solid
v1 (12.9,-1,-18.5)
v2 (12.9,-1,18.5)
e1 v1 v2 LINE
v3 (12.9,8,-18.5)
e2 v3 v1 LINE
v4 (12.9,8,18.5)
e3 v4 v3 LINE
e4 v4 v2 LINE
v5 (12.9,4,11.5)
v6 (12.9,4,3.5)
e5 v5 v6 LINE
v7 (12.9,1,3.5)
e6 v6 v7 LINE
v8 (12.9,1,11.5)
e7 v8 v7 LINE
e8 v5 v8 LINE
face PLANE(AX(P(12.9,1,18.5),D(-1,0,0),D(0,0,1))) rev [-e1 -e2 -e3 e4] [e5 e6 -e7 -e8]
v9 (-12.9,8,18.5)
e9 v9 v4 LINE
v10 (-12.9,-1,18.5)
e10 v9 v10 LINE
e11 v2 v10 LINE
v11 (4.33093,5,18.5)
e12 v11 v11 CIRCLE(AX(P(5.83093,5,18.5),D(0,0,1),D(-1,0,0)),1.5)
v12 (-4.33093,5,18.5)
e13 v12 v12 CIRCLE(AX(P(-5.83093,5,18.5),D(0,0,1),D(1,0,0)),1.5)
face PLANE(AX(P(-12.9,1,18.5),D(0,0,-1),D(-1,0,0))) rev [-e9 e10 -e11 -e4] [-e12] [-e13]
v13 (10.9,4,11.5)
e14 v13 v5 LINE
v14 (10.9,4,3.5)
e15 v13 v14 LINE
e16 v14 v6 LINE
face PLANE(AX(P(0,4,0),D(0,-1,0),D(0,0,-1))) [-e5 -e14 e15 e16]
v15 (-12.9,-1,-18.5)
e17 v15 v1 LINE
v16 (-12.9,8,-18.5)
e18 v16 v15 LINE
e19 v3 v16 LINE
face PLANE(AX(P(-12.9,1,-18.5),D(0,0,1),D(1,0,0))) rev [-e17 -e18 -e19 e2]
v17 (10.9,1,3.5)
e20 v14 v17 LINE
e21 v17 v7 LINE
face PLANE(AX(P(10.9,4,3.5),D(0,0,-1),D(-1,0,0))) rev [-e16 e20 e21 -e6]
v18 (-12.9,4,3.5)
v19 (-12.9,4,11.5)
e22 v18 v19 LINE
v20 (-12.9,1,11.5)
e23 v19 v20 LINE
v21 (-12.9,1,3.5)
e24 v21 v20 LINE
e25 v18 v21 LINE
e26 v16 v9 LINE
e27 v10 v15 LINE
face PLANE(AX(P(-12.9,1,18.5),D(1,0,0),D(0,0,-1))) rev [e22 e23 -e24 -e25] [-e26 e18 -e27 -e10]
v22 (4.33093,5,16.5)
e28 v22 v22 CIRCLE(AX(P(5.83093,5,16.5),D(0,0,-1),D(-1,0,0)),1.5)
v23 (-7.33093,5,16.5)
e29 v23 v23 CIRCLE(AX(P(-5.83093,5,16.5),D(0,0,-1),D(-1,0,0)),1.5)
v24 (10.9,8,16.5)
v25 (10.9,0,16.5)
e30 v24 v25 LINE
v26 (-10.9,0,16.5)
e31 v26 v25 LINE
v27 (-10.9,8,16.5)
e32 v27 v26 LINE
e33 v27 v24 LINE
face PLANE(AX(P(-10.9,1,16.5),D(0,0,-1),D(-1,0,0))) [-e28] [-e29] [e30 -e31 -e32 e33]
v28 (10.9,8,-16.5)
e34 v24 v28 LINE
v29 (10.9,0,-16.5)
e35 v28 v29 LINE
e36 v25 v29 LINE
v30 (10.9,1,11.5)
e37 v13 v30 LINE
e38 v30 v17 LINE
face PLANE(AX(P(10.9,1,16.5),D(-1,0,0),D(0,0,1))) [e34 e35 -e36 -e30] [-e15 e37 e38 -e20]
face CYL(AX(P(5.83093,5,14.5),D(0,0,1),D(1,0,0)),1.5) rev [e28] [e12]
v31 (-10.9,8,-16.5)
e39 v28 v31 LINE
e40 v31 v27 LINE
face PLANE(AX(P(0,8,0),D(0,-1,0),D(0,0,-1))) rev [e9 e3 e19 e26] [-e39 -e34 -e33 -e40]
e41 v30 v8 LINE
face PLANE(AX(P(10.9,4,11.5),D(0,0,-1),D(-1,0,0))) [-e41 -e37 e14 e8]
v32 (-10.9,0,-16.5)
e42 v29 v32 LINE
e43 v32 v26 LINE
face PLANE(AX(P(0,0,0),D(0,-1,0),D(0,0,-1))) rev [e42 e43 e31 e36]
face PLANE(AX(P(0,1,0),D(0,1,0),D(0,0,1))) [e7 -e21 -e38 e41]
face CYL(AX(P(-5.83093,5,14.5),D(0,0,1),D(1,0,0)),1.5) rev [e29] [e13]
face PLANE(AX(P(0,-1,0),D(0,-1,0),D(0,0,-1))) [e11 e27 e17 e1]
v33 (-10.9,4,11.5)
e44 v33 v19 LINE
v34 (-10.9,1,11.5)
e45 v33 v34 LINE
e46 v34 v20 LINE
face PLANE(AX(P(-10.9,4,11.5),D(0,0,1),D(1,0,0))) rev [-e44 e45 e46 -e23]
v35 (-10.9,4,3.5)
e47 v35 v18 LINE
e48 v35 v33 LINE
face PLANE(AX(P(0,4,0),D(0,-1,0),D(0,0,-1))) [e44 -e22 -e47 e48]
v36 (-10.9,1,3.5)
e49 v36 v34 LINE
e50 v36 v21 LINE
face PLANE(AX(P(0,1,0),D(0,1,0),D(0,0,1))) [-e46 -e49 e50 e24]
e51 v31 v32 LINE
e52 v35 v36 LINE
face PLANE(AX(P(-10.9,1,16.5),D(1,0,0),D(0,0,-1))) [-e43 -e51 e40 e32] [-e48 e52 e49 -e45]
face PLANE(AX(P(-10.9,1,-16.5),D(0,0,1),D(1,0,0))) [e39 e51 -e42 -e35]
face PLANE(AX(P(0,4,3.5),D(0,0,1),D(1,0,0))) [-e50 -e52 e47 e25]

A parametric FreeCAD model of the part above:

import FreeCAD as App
import Part
import Sketcher
from FreeCAD import Vector
Q = App.Units.Quantity


def add_polygon(sketch, points):
    """Adds a closed chain of lines whose ends are joined by coincident constraints."""
    first, n = sketch.GeometryCount, len(points)
    for a, b in zip(points, points[1:] + points[:1]):
        sketch.addGeometry(Part.LineSegment(App.Vector(*a, 0), App.Vector(*b, 0)), False)
    for i in range(n):
        sketch.addConstraint(Sketcher.Constraint("Coincident", first + i, 2, first + (i + 1) % n, 1))

doc = App.newDocument("Part")
body = doc.addObject("PartDesign::Body", "Body")

sketch1 = body.newObject("Sketcher::SketchObject", "Sketch")
sketch1.AttachmentSupport = (doc.getObject("XZ_Plane"), [""])
sketch1.MapMode = "FlatFace"
add_polygon(sketch1, [(-13, -18), (-13, 18), (13, 18), (13, -18)])
add_polygon(sketch1, [(11, 16), (-11, 16), (-11, -16), (11, -16)])
sketch1.addConstraint([
    Sketcher.Constraint("Vertical", 0),
    Sketcher.Constraint("Horizontal", 1),
    Sketcher.Constraint("Vertical", 2),
    Sketcher.Constraint("Horizontal", 3),
    Sketcher.Constraint("Horizontal", 4),
    Sketcher.Constraint("Vertical", 5),
    Sketcher.Constraint("Horizontal", 6),
    Sketcher.Constraint("Vertical", 7),
    Sketcher.Constraint("Symmetric", 0, 2, 2, 2, -1, 1),
    Sketcher.Constraint("Symmetric", 4, 2, 6, 2, -1, 1),
    Sketcher.Constraint("DistanceY", 0, 1, 0, 2, Q("37 mm")),
    Sketcher.Constraint("DistanceY", 5, 2, 5, 1, Q("33 mm")),
    Sketcher.Constraint("DistanceX", 1, 1, 1, 2, Q("25.8 mm")),
    Sketcher.Constraint("DistanceX", 4, 2, 4, 1, Q("21.8 mm")),
])
pad1 = body.newObject("PartDesign::Pad", "Pad")
pad1.Profile = sketch1
pad1.Length = 1
pad1.Reversed = True

sketch2 = body.newObject("Sketcher::SketchObject", "Sketch001")
sketch2.AttachmentSupport = (doc.getObject("XZ_Plane"), [""])
sketch2.MapMode = "FlatFace"
sketch2.AttachmentOffset = App.Placement(Vector(0, 0, -1), App.Rotation())
add_polygon(sketch2, [(-12.9, 11.5), (-12.9, 18.5), (12.9, 18.5), (12.9, 11.5), (10.9, 11.5), (10.9, 16.5), (-10.9, 16.5), (-10.9, 11.5)])
add_polygon(sketch2, [(-12.9, -18.5), (-12.9, 3.5), (-10.9, 3.5), (-10.9, -16.5), (10.9, -16.5), (10.9, 3.5), (12.9, 3.5), (12.9, -18.5)])
sketch2.addConstraint([
    Sketcher.Constraint("Vertical", 0),
    Sketcher.Constraint("Horizontal", 1),
    Sketcher.Constraint("Vertical", 2),
    Sketcher.Constraint("Horizontal", 3),
    Sketcher.Constraint("Vertical", 4),
    Sketcher.Constraint("Horizontal", 5),
    Sketcher.Constraint("Vertical", 6),
    Sketcher.Constraint("Horizontal", 7),
    Sketcher.Constraint("Vertical", 8),
    Sketcher.Constraint("Horizontal", 9),
    Sketcher.Constraint("Vertical", 10),
    Sketcher.Constraint("Horizontal", 11),
    Sketcher.Constraint("Vertical", 12),
    Sketcher.Constraint("Horizontal", 13),
    Sketcher.Constraint("Vertical", 14),
    Sketcher.Constraint("Horizontal", 15),
    Sketcher.Constraint("Symmetric", 4, 2, 10, 2, -1, 1),
    Sketcher.Constraint("Symmetric", 0, 2, 14, 2, -1, 1),
    Sketcher.Constraint("Symmetric", 3, 2, 6, 2, -2),
    Sketcher.Constraint("Symmetric", 9, 2, 12, 2, -2),
    Sketcher.Constraint("Vertical", 7, 2, 8, 2),
    Sketcher.Constraint("Vertical", 2, 2, 13, 2),
    Sketcher.Constraint("DistanceX", 3, 2, 3, 1, Q("2 mm")),
    Sketcher.Constraint("DistanceY", 0, 1, 0, 2, Q("7 mm")),
    Sketcher.Constraint("DistanceY", 4, 1, 4, 2, Q("5 mm")),
    Sketcher.Constraint("DistanceY", 8, 1, 8, 2, Q("22 mm")),
    Sketcher.Constraint("DistanceX", 1, 1, 1, 2, Q("25.8 mm")),
    Sketcher.Constraint("DistanceY", 8, 2, 7, 2, Q("8 mm")),
])
pad2 = body.newObject("PartDesign::Pad", "Pad001")
pad2.Profile = sketch2
pad2.Length = 3
pad2.Reversed = True

sketch3 = body.newObject("Sketcher::SketchObject", "Sketch002")
sketch3.AttachmentSupport = (doc.getObject("XZ_Plane"), [""])
sketch3.MapMode = "FlatFace"
add_polygon(sketch3, [(-13, 18), (-13, -18), (13, -18), (13, 18)])
sketch3.addConstraint([
    Sketcher.Constraint("Vertical", 0),
    Sketcher.Constraint("Horizontal", 1),
    Sketcher.Constraint("Vertical", 2),
    Sketcher.Constraint("Horizontal", 3),
    Sketcher.Constraint("Symmetric", 0, 2, 2, 2, -1, 1),
    Sketcher.Constraint("DistanceY", 0, 2, 0, 1, Q("37 mm")),
    Sketcher.Constraint("DistanceX", 1, 1, 1, 2, Q("25.8 mm")),
])
pad3 = body.newObject("PartDesign::Pad", "Pad002")
pad3.Profile = sketch3
pad3.Length = 1

sketch4 = body.newObject("Sketcher::SketchObject", "Sketch003")
sketch4.AttachmentSupport = (doc.getObject("XZ_Plane"), [""])
sketch4.MapMode = "FlatFace"
sketch4.AttachmentOffset = App.Placement(Vector(0, 0, -4), App.Rotation())
add_polygon(sketch4, [(-13, -18), (-13, 18), (13, 18), (13, -18)])
add_polygon(sketch4, [(11, 16), (-11, 16), (-11, -16), (11, -16)])
sketch4.addConstraint([
    Sketcher.Constraint("Vertical", 0),
    Sketcher.Constraint("Horizontal", 1),
    Sketcher.Constraint("Vertical", 2),
    Sketcher.Constraint("Horizontal", 3),
    Sketcher.Constraint("Horizontal", 4),
    Sketcher.Constraint("Vertical", 5),
    Sketcher.Constraint("Horizontal", 6),
    Sketcher.Constraint("Vertical", 7),
    Sketcher.Constraint("Symmetric", 0, 2, 2, 2, -1, 1),
    Sketcher.Constraint("Symmetric", 4, 2, 6, 2, -1, 1),
    Sketcher.Constraint("DistanceY", 0, 1, 0, 2, Q("37 mm")),
    Sketcher.Constraint("DistanceY", 5, 2, 5, 1, Q("33 mm")),
    Sketcher.Constraint("DistanceX", 1, 1, 1, 2, Q("25.8 mm")),
    Sketcher.Constraint("DistanceX", 4, 2, 4, 1, Q("21.8 mm")),
])
pad4 = body.newObject("PartDesign::Pad", "Pad003")
pad4.Profile = sketch4
pad4.Length = 4
pad4.Reversed = True

sketch5 = body.newObject("Sketcher::SketchObject", "Sketch004")
sketch5.AttachmentSupport = (doc.getObject("XY_Plane"), [""])
sketch5.MapMode = "FlatFace"
sketch5.AttachmentOffset = App.Placement(Vector(0, 0, 18.5), App.Rotation())
sketch5.addGeometry([
    Part.Circle(Vector(-5.8, 5, 0), Vector(0, 0, 1), 1.5),
    Part.Circle(Vector(5.8, 5, 0), Vector(0, 0, 1), 1.5),
], False)
sketch5.addConstraint([
    Sketcher.Constraint("Equal", 0, 1),
    Sketcher.Constraint("Symmetric", 0, 3, 1, 3, -2),
    Sketcher.Constraint("Diameter", 0, Q("3 mm")),
    Sketcher.Constraint("DistanceY", -1, 1, 0, 3, Q("5 mm")),
    Sketcher.Constraint("DistanceX", 0, 3, -1, 1, Q("5.83093 mm")),
])
pocket1 = body.newObject("PartDesign::Pocket", "Pocket")
pocket1.Profile = sketch5
pocket1.Length = 4

doc.recompute()
